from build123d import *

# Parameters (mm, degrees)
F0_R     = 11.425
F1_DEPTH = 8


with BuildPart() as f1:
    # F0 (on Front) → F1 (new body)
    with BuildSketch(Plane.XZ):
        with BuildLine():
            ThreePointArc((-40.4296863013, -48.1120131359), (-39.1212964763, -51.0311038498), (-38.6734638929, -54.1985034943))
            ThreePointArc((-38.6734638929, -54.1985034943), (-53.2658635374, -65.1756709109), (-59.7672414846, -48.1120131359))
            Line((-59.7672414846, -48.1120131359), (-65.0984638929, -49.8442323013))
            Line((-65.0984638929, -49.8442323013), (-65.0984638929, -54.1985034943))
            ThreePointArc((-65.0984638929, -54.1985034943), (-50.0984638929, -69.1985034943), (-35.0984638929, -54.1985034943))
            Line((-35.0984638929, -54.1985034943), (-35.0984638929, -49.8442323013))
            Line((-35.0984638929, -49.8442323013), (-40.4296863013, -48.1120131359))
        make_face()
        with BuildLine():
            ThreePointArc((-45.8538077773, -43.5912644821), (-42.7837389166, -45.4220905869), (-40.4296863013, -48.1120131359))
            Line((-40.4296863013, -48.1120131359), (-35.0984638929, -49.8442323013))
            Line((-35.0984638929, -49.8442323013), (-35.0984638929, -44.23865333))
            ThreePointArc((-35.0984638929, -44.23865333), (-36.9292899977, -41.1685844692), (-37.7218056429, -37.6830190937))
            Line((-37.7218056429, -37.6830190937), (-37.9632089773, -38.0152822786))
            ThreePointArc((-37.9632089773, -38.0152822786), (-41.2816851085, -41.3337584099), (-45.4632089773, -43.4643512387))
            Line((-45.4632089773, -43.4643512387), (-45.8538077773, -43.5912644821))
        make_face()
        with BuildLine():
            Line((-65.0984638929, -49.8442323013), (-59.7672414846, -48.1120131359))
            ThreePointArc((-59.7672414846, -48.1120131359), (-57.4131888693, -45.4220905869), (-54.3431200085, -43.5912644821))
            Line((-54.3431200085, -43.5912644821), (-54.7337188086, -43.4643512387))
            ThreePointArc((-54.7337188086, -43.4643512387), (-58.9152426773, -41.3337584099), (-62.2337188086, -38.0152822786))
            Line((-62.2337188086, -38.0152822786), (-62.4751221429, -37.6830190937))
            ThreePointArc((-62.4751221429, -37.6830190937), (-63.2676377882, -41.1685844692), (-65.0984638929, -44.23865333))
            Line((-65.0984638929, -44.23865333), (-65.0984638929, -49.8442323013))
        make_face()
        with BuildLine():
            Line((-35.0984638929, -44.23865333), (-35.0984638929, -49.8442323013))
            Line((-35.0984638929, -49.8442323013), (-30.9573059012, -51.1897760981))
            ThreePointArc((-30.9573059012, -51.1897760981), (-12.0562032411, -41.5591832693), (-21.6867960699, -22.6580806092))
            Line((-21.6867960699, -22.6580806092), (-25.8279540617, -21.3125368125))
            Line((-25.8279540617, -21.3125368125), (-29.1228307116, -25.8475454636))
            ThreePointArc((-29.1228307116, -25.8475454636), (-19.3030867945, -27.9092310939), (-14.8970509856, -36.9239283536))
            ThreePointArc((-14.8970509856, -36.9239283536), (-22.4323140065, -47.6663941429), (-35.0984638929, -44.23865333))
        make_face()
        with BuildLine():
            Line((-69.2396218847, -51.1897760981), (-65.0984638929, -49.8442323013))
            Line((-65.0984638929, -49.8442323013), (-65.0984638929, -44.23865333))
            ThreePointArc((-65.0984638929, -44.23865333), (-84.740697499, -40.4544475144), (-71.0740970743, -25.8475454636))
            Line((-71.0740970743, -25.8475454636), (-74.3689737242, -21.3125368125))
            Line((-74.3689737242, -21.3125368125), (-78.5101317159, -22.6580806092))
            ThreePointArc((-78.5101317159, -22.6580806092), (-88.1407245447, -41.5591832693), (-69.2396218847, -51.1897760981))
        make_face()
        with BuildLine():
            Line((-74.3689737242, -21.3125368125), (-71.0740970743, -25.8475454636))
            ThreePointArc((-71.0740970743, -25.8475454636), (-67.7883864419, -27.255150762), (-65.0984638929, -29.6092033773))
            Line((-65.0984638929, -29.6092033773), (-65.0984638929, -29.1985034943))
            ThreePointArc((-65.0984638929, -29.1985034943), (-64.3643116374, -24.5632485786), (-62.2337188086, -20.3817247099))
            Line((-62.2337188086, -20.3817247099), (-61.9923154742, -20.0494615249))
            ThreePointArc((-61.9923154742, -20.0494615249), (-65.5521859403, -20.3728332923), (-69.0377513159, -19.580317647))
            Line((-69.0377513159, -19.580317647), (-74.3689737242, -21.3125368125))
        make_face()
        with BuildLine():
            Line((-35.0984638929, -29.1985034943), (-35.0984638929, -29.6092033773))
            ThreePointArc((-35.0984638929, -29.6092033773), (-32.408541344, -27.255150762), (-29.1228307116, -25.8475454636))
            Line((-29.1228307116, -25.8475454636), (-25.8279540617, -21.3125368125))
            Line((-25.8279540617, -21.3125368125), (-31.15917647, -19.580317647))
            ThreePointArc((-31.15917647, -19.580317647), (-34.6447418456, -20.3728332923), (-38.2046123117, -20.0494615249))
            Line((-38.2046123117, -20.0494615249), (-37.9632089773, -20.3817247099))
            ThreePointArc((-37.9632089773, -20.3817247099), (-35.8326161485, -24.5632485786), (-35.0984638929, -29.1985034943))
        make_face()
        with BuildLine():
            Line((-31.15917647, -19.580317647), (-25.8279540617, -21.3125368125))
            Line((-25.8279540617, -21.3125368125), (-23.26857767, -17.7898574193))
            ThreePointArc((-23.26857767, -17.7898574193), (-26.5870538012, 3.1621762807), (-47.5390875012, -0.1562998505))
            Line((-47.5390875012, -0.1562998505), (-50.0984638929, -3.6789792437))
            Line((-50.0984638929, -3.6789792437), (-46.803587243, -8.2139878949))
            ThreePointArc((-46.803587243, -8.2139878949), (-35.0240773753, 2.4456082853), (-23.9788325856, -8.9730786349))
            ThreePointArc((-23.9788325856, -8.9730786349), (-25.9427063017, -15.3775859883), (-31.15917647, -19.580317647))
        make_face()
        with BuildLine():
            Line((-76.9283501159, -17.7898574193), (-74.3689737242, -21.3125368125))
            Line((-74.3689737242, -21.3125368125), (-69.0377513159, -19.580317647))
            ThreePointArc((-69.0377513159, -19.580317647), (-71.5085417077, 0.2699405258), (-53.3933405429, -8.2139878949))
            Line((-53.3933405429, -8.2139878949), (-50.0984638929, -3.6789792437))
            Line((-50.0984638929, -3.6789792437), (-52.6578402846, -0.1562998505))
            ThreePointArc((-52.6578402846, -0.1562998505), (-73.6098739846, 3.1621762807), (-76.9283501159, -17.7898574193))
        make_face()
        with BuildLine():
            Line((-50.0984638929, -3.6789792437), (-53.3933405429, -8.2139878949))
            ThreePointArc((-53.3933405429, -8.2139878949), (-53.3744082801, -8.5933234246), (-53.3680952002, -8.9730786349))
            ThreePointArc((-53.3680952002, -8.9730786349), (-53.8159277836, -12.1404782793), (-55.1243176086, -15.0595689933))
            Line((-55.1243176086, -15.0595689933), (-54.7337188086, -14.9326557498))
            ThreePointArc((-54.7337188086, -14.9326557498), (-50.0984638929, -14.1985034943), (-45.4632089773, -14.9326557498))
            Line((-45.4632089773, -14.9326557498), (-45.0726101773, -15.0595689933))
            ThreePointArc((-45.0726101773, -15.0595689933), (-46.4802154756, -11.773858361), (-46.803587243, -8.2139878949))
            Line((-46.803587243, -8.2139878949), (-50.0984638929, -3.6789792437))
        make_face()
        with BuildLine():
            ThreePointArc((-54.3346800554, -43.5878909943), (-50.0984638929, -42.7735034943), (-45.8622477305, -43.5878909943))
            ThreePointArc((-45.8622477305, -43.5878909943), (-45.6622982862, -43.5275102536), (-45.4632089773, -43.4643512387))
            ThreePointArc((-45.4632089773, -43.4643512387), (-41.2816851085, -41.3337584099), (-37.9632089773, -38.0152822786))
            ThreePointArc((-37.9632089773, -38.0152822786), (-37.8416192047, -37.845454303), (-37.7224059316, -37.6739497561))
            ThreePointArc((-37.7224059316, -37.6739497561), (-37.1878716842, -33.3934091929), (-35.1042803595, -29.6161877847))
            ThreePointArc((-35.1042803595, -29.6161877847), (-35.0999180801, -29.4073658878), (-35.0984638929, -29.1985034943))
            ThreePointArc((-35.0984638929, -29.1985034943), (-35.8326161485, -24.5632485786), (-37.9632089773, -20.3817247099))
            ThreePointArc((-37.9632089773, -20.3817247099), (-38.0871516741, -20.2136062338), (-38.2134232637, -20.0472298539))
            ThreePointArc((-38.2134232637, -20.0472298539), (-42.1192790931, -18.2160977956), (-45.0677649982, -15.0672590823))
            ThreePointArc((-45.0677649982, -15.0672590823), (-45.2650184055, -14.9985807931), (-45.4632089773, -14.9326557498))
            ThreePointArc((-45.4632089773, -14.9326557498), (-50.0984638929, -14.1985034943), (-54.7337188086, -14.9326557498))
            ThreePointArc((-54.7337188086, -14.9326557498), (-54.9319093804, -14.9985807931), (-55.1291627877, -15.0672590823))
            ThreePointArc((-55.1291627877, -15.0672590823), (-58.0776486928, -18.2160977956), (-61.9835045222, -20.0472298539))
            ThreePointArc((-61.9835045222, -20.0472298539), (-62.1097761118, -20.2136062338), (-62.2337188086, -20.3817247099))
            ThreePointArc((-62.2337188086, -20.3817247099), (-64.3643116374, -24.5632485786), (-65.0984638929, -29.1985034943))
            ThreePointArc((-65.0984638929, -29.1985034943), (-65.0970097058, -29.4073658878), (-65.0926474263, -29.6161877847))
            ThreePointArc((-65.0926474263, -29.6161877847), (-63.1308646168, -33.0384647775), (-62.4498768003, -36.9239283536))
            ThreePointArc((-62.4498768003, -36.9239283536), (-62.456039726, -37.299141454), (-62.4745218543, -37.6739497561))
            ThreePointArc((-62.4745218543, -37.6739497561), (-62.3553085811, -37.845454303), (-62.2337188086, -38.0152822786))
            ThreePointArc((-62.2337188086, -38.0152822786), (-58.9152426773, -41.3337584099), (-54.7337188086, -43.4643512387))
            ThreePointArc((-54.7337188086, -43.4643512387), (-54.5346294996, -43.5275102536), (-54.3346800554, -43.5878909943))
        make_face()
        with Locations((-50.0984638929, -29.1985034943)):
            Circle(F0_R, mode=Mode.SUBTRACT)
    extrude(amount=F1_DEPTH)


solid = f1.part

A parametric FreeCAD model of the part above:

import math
import FreeCAD as App
import Part
import Sketcher
from FreeCAD import Vector

doc = App.newDocument("Part")
params = doc.addObject("Spreadsheet::Sheet", "Params")
for row, (alias, value) in enumerate([
    ("sketch1_radius", "15 mm"),
    ("sketch1_diameter", "22.85 mm"),
    ("pad1_length", "8 mm"),
], start=1):
    params.set(f"A{row}", alias)
    params.set(f"B{row}", "=" + value)
    params.setAlias(f"B{row}", alias)

body = doc.addObject("PartDesign::Body", "Body")

# Sketch on XZ plane
sketch1 = body.newObject("Sketcher::SketchObject", "Sketch")
sketch1.AttachmentSupport = (doc.getObject("XZ_Plane"), [""])
sketch1.MapMode = "FlatFace"
sketch1.addGeometry(Part.LineSegment(Vector(-47.54, -0.16, 0), Vector(-50.1, -3.68, 0)), False)
sketch1.addGeometry(Part.LineSegment(Vector(-50.1, -3.68, 0), Vector(-52.66, -0.16, 0)), False)
sketch1.addGeometry(Part.ArcOfCircle(Part.Circle(Vector(-64.79, -8.97, 0), Vector(0, 0, 1), 15), math.radians(36), math.radians(216)), False)
sketch1.addGeometry(Part.LineSegment(Vector(-76.93, -17.79, 0), Vector(-74.37, -21.31, 0)), False)
sketch1.addGeometry(Part.LineSegment(Vector(-74.37, -21.31, 0), Vector(-78.51, -22.66, 0)), False)
sketch1.addGeometry(Part.ArcOfCircle(Part.Circle(Vector(-73.87, -36.92, 0), Vector(0, 0, 1), 15), math.radians(108), math.radians(288)), False)
sketch1.addGeometry(Part.LineSegment(Vector(-69.24, -51.19, 0), Vector(-65.1, -49.84, 0)), False)
sketch1.addGeometry(Part.LineSegment(Vector(-65.1, -49.84, 0), Vector(-65.1, -54.2, 0)), False)
sketch1.addGeometry(Part.ArcOfCircle(Part.Circle(Vector(-50.1, -54.2, 0), Vector(0, 0, 1), 15), math.radians(180), math.radians(360)), False)
sketch1.addGeometry(Part.LineSegment(Vector(-35.1, -54.2, 0), Vector(-35.1, -49.84, 0)), False)
sketch1.addGeometry(Part.LineSegment(Vector(-35.1, -49.84, 0), Vector(-30.96, -51.19, 0)), False)
sketch1.addGeometry(Part.ArcOfCircle(Part.Circle(Vector(-26.32, -36.92, 0), Vector(0, 0, 1), 15), math.radians(-108), math.radians(72)), False)
sketch1.addGeometry(Part.LineSegment(Vector(-21.69, -22.66, 0), Vector(-25.83, -21.31, 0)), False)
sketch1.addGeometry(Part.LineSegment(Vector(-25.83, -21.31, 0), Vector(-23.27, -17.79, 0)), False)
sketch1.addGeometry(Part.ArcOfCircle(Part.Circle(Vector(-35.4, -8.97, 0), Vector(0, 0, 1), 15), math.radians(-36), math.radians(144)), False)
sketch1.addGeometry(Part.LineSegment(Vector(-65.1, -29.61, 0), Vector(-65.1, -29.2, 0)), False)
sketch1.addGeometry(Part.ArcOfCircle(Part.Circle(Vector(-50.1, -29.2, 0), Vector(0, 0, 1), 15), math.radians(180), math.radians(181.6)), False)
sketch1.addGeometry(Part.ArcOfCircle(Part.Circle(Vector(-73.87, -36.92, 0), Vector(0, 0, 1), 11.43), math.radians(0), math.radians(40)), False)
sketch1.addGeometry(Part.ArcOfCircle(Part.Circle(Vector(-73.87, -36.92, 0), Vector(0, 0, 1), 11.42), math.radians(-3.76), math.radians(0)), False)
sketch1.addGeometry(Part.ArcOfCircle(Part.Circle(Vector(-50.1, -29.2, 0), Vector(0, 0, 1), 15), math.radians(-145.6), math.radians(-144)), False)
sketch1.addGeometry(Part.LineSegment(Vector(-62.23, -38.02, 0), Vector(-62.48, -37.68, 0)), False)
sketch1.addGeometry(Part.ArcOfCircle(Part.Circle(Vector(-73.87, -36.92, 0), Vector(0, 0, 1), 11.43), math.radians(-40), math.radians(-4)), False)
sketch1.addGeometry(Part.ArcOfCircle(Part.Circle(Vector(-73.87, -36.92, 0), Vector(0, 0, 1), 11.43), math.radians(76), math.radians(320)), False)
sketch1.addGeometry(Part.ArcOfCircle(Part.Circle(Vector(-73.87, -36.92, 0), Vector(0, 0, 1), 11.43), math.radians(40), math.radians(76)), False)
sketch1.addGeometry(Part.LineSegment(Vector(-54.34, -43.59, 0), Vector(-54.73, -43.46, 0)), False)
sketch1.addGeometry(Part.ArcOfCircle(Part.Circle(Vector(-50.1, -29.2, 0), Vector(0, 0, 1), 15), math.radians(-108), math.radians(-106.4)), False)
sketch1.addGeometry(Part.ArcOfCircle(Part.Circle(Vector(-50.1, -54.2, 0), Vector(0, 0, 1), 11.43), math.radians(68), math.radians(112)), False)
sketch1.addGeometry(Part.ArcOfCircle(Part.Circle(Vector(-50.1, -29.2, 0), Vector(0, 0, 1), 15), math.radians(-73.6), math.radians(-72)), False)
sketch1.addGeometry(Part.LineSegment(Vector(-45.46, -43.46, 0), Vector(-45.85, -43.59, 0)), False)
sketch1.addGeometry(Part.ArcOfCircle(Part.Circle(Vector(-50.1, -54.2, 0), Vector(0, 0, 1), 11.43), math.radians(32), math.radians(68)), False)
sketch1.addGeometry(Part.ArcOfCircle(Part.Circle(Vector(-50.1, -54.2, 0), Vector(0, 0, 1), 11.42), math.radians(0), math.radians(32)), False)
sketch1.addGeometry(Part.ArcOfCircle(Part.Circle(Vector(-50.1, -54.2, 0), Vector(0, 0, 1), 11.43), math.radians(148), math.radians(360)), False)
sketch1.addGeometry(Part.ArcOfCircle(Part.Circle(Vector(-50.1, -54.2, 0), Vector(0, 0, 1), 11.43), math.radians(112), math.radians(148)), False)
sketch1.addGeometry(Part.LineSegment(Vector(-37.72, -37.68, 0), Vector(-37.96, -38.02, 0)), False)
sketch1.addGeometry(Part.ArcOfCircle(Part.Circle(Vector(-50.1, -29.2, 0), Vector(0, 0, 1), 15), math.radians(-36), math.radians(-34.4)), False)
sketch1.addGeometry(Part.ArcOfCircle(Part.Circle(Vector(-26.32, -36.92, 0), Vector(0, 0, 1), 11.43), math.radians(140), math.radians(184)), False)
sketch1.addGeometry(Part.ArcOfCircle(Part.Circle(Vector(-50.1, -29.2, 0), Vector(0, 0, 1), 15), math.radians(-1.6), math.radians(0)), False)
sketch1.addGeometry(Part.LineSegment(Vector(-35.1, -29.2, 0), Vector(-35.1, -29.61, 0)), False)
sketch1.addGeometry(Part.ArcOfCircle(Part.Circle(Vector(-26.32, -36.92, 0), Vector(0, 0, 1), 11.43), math.radians(104), math.radians(140)), False)
sketch1.addGeometry(Part.ArcOfCircle(Part.Circle(Vector(-26.32, -36.92, 0), Vector(0, 0, 1), 11.43), math.radians(0), math.radians(104)), False)
sketch1.addGeometry(Part.ArcOfCircle(Part.Circle(Vector(-26.32, -36.92, 0), Vector(0, 0, 1), 11.43), math.radians(-140), math.radians(0)), False)
sketch1.addGeometry(Part.ArcOfCircle(Part.Circle(Vector(-26.32, -36.92, 0), Vector(0, 0, 1), 11.43), math.radians(-176), math.radians(-140)), False)
sketch1.addGeometry(Part.LineSegment(Vector(-55.12, -15.06, 0), Vector(-54.73, -14.93, 0)), False)
sketch1.addGeometry(Part.ArcOfCircle(Part.Circle(Vector(-50.1, -29.2, 0), Vector(0, 0, 1), 15), math.radians(108), math.radians(109.6)), False)
sketch1.addGeometry(Part.ArcOfCircle(Part.Circle(Vector(-64.79, -8.97, 0), Vector(0, 0, 1), 11.43), math.radians(-76), math.radians(-32)), False)
sketch1.addGeometry(Part.ArcOfCircle(Part.Circle(Vector(-50.1, -29.2, 0), Vector(0, 0, 1), 15), math.radians(142.4), math.radians(144)), False)
sketch1.addGeometry(Part.LineSegment(Vector(-62.23, -20.38, 0), Vector(-61.99, -20.05, 0)), False)
sketch1.addGeometry(Part.ArcOfCircle(Part.Circle(Vector(-64.79, -8.97, 0), Vector(0, 0, 1), 11.42), math.radians(-112), math.radians(-76)), False)
sketch1.addGeometry(Part.ArcOfCircle(Part.Circle(Vector(-64.79, -8.97, 0), Vector(0, 0, 1), 11.43), math.radians(4), math.radians(248)), False)
sketch1.addGeometry(Part.ArcOfCircle(Part.Circle(Vector(-64.79, -8.97, 0), Vector(0, 0, 1), 11.43), math.radians(0), math.radians(3.81)), False)
sketch1.addGeometry(Part.ArcOfCircle(Part.Circle(Vector(-64.79, -8.97, 0), Vector(0, 0, 1), 11.43), math.radians(-32), math.radians(0)), False)
sketch1.addGeometry(Part.Circle(Vector(-50.1, -29.2, 0), Vector(0, 0, 1), 11.43), False)
sketch1.addGeometry(Part.LineSegment(Vector(-38.2, -20.05, 0), Vector(-37.96, -20.38, 0)), False)
sketch1.addGeometry(Part.ArcOfCircle(Part.Circle(Vector(-50.1, -29.2, 0), Vector(0, 0, 1), 15), math.radians(36), math.radians(37.6)), False)
sketch1.addGeometry(Part.ArcOfCircle(Part.Circle(Vector(-35.4, -8.97, 0), Vector(0, 0, 1), 11.43), math.radians(-148), math.radians(-104)), False)
sketch1.addGeometry(Part.ArcOfCircle(Part.Circle(Vector(-50.1, -29.2, 0), Vector(0, 0, 1), 15), math.radians(70.4), math.radians(72)), False)
sketch1.addGeometry(Part.LineSegment(Vector(-45.46, -14.93, 0), Vector(-45.07, -15.06, 0)), False)
sketch1.addGeometry(Part.ArcOfCircle(Part.Circle(Vector(-35.4, -8.97, 0), Vector(0, 0, 1), 11.43), math.radians(176), math.radians(212)), False)
sketch1.addGeometry(Part.ArcOfCircle(Part.Circle(Vector(-35.4, -8.97, 0), Vector(0, 0, 1), 11.43), math.radians(0), math.radians(176)), False)
sketch1.addGeometry(Part.ArcOfCircle(Part.Circle(Vector(-35.4, -8.97, 0), Vector(0, 0, 1), 11.43), math.radians(-68), math.radians(0)), False)
sketch1.addGeometry(Part.ArcOfCircle(Part.Circle(Vector(-35.4, -8.97, 0), Vector(0, 0, 1), 11.42), math.radians(-104), math.radians(-68)), False)
sketch1.addConstraint(Sketcher.Constraint("Coincident", 0, 2, 1, 1))
sketch1.addConstraint(Sketcher.Constraint("Tangent", 1, 2, 2, 1))
sketch1.addConstraint(Sketcher.Constraint("Tangent", 2, 2, 3, 1))
sketch1.addConstraint(Sketcher.Constraint("Coincident", 3, 2, 4, 1))
sketch1.addConstraint(Sketcher.Constraint("Tangent", 4, 2, 5, 1))
sketch1.addConstraint(Sketcher.Constraint("Tangent", 5, 2, 6, 1))
sketch1.addConstraint(Sketcher.Constraint("Coincident", 6, 2, 7, 1))
sketch1.addConstraint(Sketcher.Constraint("Tangent", 7, 2, 8, 1))
sketch1.addConstraint(Sketcher.Constraint("Tangent", 8, 2, 9, 1))
sketch1.addConstraint(Sketcher.Constraint("Coincident", 9, 2, 10, 1))
sketch1.addConstraint(Sketcher.Constraint("Tangent", 10, 2, 11, 1))
sketch1.addConstraint(Sketcher.Constraint("Tangent", 11, 2, 12, 1))
sketch1.addConstraint(Sketcher.Constraint("Coincident", 12, 2, 13, 1))
sketch1.addConstraint(Sketcher.Constraint("Tangent", 13, 2, 14, 1))
sketch1.addConstraint(Sketcher.Constraint("Tangent", 14, 2, 0, 1))
sketch1.addConstraint(Sketcher.Constraint("Tangent", 15, 2, 16, 1))
sketch1.addConstraint(Sketcher.Constraint("Coincident", 16, 2, 17, 2))
sketch1.addConstraint(Sketcher.Constraint("Tangent", 17, 1, 18, 2))
sketch1.addConstraint(Sketcher.Constraint("Coincident", 18, 1, 19, 1))
sketch1.addConstraint(Sketcher.Constraint("Tangent", 19, 2, 20, 1))
sketch1.addConstraint(Sketcher.Constraint("Coincident", 20, 2, 21, 2))
sketch1.addConstraint(Sketcher.Constraint("Tangent", 21, 1, 22, 2))
sketch1.addConstraint(Sketcher.Constraint("Tangent", 22, 1, 23, 2))
sketch1.addConstraint(Sketcher.Constraint("Coincident", 23, 1, 15, 1))
sketch1.addConstraint(Sketcher.Constraint("Tangent", 24, 2, 25, 1))
sketch1.addConstraint(Sketcher.Constraint("Coincident", 25, 2, 26, 2))
sketch1.addConstraint(Sketcher.Constraint("Coincident", 26, 1, 27, 1))
sketch1.addConstraint(Sketcher.Constraint("Tangent", 27, 2, 28, 1))
sketch1.addConstraint(Sketcher.Constraint("Coincident", 28, 2, 29, 2))
sketch1.addConstraint(Sketcher.Constraint("Tangent", 29, 1, 30, 2))
sketch1.addConstraint(Sketcher.Constraint("Tangent", 30, 1, 31, 2))
sketch1.addConstraint(Sketcher.Constraint("Tangent", 31, 1, 32, 2))
sketch1.addConstraint(Sketcher.Constraint("Coincident", 32, 1, 24, 1))
sketch1.addConstraint(Sketcher.Constraint("Tangent", 33, 2, 34, 1))
sketch1.addConstraint(Sketcher.Constraint("Coincident", 34, 2, 35, 2))
sketch1.addConstraint(Sketcher.Constraint("Coincident", 35, 1, 36, 1))
sketch1.addConstraint(Sketcher.Constraint("Tangent", 36, 2, 37, 1))
sketch1.addConstraint(Sketcher.Constraint("Coincident", 37, 2, 38, 2))
sketch1.addConstraint(Sketcher.Constraint("Tangent", 38, 1, 39, 2))
sketch1.addConstraint(Sketcher.Constraint("Tangent", 39, 1, 40, 2))
sketch1.addConstraint(Sketcher.Constraint("Tangent", 40, 1, 41, 2))
sketch1.addConstraint(Sketcher.Constraint("Coincident", 41, 1, 33, 1))
sketch1.addConstraint(Sketcher.Constraint("Tangent", 42, 2, 43, 1))
sketch1.addConstraint(Sketcher.Constraint("Coincident", 43, 2, 44, 2))
sketch1.addConstraint(Sketcher.Constraint("Coincident", 44, 1, 45, 1))
sketch1.addConstraint(Sketcher.Constraint("Tangent", 45, 2, 46, 1))
sketch1.addConstraint(Sketcher.Constraint("Coincident", 46, 2, 47, 2))
sketch1.addConstraint(Sketcher.Constraint("Tangent", 47, 1, 48, 2))
sketch1.addConstraint(Sketcher.Constraint("Tangent", 48, 1, 49, 2))
sketch1.addConstraint(Sketcher.Constraint("Tangent", 49, 1, 50, 2))
sketch1.addConstraint(Sketcher.Constraint("Coincident", 50, 1, 42, 1))
sketch1.addConstraint(Sketcher.Constraint("Tangent", 52, 2, 53, 1))
sketch1.addConstraint(Sketcher.Constraint("Coincident", 53, 2, 54, 2))
sketch1.addConstraint(Sketcher.Constraint("Coincident", 54, 1, 55, 1))
sketch1.addConstraint(Sketcher.Constraint("Tangent", 55, 2, 56, 1))
sketch1.addConstraint(Sketcher.Constraint("Coincident", 56, 2, 57, 2))
sketch1.addConstraint(Sketcher.Constraint("Tangent", 57, 1, 58, 2))
sketch1.addConstraint(Sketcher.Constraint("Tangent", 58, 1, 59, 2))
sketch1.addConstraint(Sketcher.Constraint("Tangent", 59, 1, 60, 2))
sketch1.addConstraint(Sketcher.Constraint("Coincident", 60, 1, 52, 1))
sketch1.addConstraint(Sketcher.Constraint("Vertical", 7))
sketch1.addConstraint(Sketcher.Constraint("Vertical", 9))
sketch1.addConstraint(Sketcher.Constraint("Vertical", 15))
sketch1.addConstraint(Sketcher.Constraint("Vertical", 37))
sketch1.addConstraint(Sketcher.Constraint("Coincident", 17, 3, 5, 3))
sketch1.addConstraint(Sketcher.Constraint("Coincident", 19, 3, 16, 3))
sketch1.addConstraint(Sketcher.Constraint("Coincident", 21, 3, 5, 3))
sketch1.addConstraint(Sketcher.Constraint("Coincident", 23, 3, 5, 3))
sketch1.addConstraint(Sketcher.Constraint("Coincident", 25, 3, 16, 3))
sketch1.addConstraint(Sketcher.Constraint("Coincident", 26, 3, 8, 3))
sketch1.addConstraint(Sketcher.Constraint("Coincident", 27, 3, 16, 3))
sketch1.addConstraint(Sketcher.Constraint("Coincident", 29, 3, 8, 3))
sketch1.addConstraint(Sketcher.Constraint("Coincident", 31, 3, 8, 3))
sketch1.addConstraint(Sketcher.Constraint("Coincident", 34, 3, 16, 3))
sketch1.addConstraint(Sketcher.Constraint("Coincident", 35, 3, 11, 3))
sketch1.addConstraint(Sketcher.Constraint("Coincident", 36, 3, 16, 3))
sketch1.addConstraint(Sketcher.Constraint("Coincident", 38, 3, 11, 3))
sketch1.addConstraint(Sketcher.Constraint("Coincident", 40, 3, 11, 3))
sketch1.addConstraint(Sketcher.Constraint("Coincident", 43, 3, 16, 3))
sketch1.addConstraint(Sketcher.Constraint("Coincident", 44, 3, 2, 3))
sketch1.addConstraint(Sketcher.Constraint("Coincident", 45, 3, 16, 3))
sketch1.addConstraint(Sketcher.Constraint("Coincident", 47, 3, 2, 3))
sketch1.addConstraint(Sketcher.Constraint("Coincident", 49, 3, 2, 3))
sketch1.addConstraint(Sketcher.Constraint("Coincident", 51, 3, 16, 3))
sketch1.addConstraint(Sketcher.Constraint("Coincident", 53, 3, 16, 3))
sketch1.addConstraint(Sketcher.Constraint("Coincident", 54, 3, 14, 3))
sketch1.addConstraint(Sketcher.Constraint("Coincident", 55, 3, 16, 3))
sketch1.addConstraint(Sketcher.Constraint("Coincident", 57, 3, 14, 3))
sketch1.addConstraint(Sketcher.Constraint("Coincident", 59, 3, 14, 3))
sketch1.addConstraint(Sketcher.Constraint("Equal", 2, 5))
sketch1.addConstraint(Sketcher.Constraint("Equal", 5, 8))
sketch1.addConstraint(Sketcher.Constraint("Equal", 8, 11))
sketch1.addConstraint(Sketcher.Constraint("Equal", 11, 14))
sketch1.addConstraint(Sketcher.Constraint("Equal", 14, 16))
sketch1.addConstraint(Sketcher.Constraint("Equal", 17, 18))
sketch1.addConstraint(Sketcher.Constraint("Equal", 16, 19))
sketch1.addConstraint(Sketcher.Constraint("Equal", 18, 21))
sketch1.addConstraint(Sketcher.Constraint("Equal", 19, 25))
sketch1.addConstraint(Sketcher.Constraint("Equal", 23, 26))
sketch1.addConstraint(Sketcher.Constraint("Equal", 25, 27))
sketch1.addConstraint(Sketcher.Constraint("Equal", 26, 29))
sketch1.addConstraint(Sketcher.Constraint("Equal", 31, 32))
sketch1.addConstraint(Sketcher.Constraint("Equal", 27, 34))
sketch1.addConstraint(Sketcher.Constraint("Equal", 32, 35))
sketch1.addConstraint(Sketcher.Constraint("Equal", 34, 36))
sketch1.addConstraint(Sketcher.Constraint("Equal", 35, 38))
sketch1.addConstraint(Sketcher.Constraint("Equal", 40, 41))
sketch1.addConstraint(Sketcher.Constraint("Equal", 36, 43))
sketch1.addConstraint(Sketcher.Constraint("Equal", 41, 44))
sketch1.addConstraint(Sketcher.Constraint("Equal", 43, 45))
sketch1.addConstraint(Sketcher.Constraint("Equal", 44, 47))
sketch1.addConstraint(Sketcher.Constraint("Equal", 49, 50))
sketch1.addConstraint(Sketcher.Constraint("Equal", 50, 51))
sketch1.addConstraint(Sketcher.Constraint("Equal", 45, 53))
sketch1.addConstraint(Sketcher.Constraint("Equal", 51, 54))
sketch1.addConstraint(Sketcher.Constraint("Equal", 53, 55))
sketch1.addConstraint(Sketcher.Constraint("Equal", 54, 57))
sketch1.addConstraint(Sketcher.Constraint("Equal", 59, 60))
sketch1.addConstraint(Sketcher.Constraint("Parallel", 1, 3))
sketch1.addConstraint(Sketcher.Constraint("Parallel", 4, 6))
sketch1.addConstraint(Sketcher.Constraint("Parallel", 10, 12))
sketch1.addConstraint(Sketcher.Constraint("Parallel", 0, 13))
sketch1.addConstraint(Sketcher.Constraint("Parallel", 3, 20))
sketch1.addConstraint(Sketcher.Constraint("Parallel", 12, 24))
sketch1.addConstraint(Sketcher.Constraint("Parallel", 6, 28))
sketch1.addConstraint(Sketcher.Constraint("Parallel", 13, 33))
sketch1.addConstraint(Sketcher.Constraint("Parallel", 28, 42))
sketch1.addConstraint(Sketcher.Constraint("Parallel", 33, 46))
sketch1.addConstraint(Sketcher.Constraint("Parallel", 20, 52))
sketch1.addConstraint(Sketcher.Constraint("Parallel", 24, 56))
sketch1.addConstraint(Sketcher.Constraint("Horizontal", 5, 3, 11, 3))
sketch1.addConstraint(Sketcher.Constraint("Horizontal", 2, 3, 14, 3))
sketch1.addConstraint(Sketcher.Constraint("Horizontal", 6, 2, 9, 2))
sketch1.addConstraint(Sketcher.Constraint("Horizontal", 5, 2, 10, 2))
sketch1.addConstraint(Sketcher.Constraint("Horizontal", 3, 2, 12, 2))
sketch1.addConstraint(Sketcher.Constraint("Horizontal", 2, 2, 13, 2))
sketch1.addConstraint(Sketcher.Constraint("Horizontal", 41, 3, 17, 1))
sketch1.addConstraint(Sketcher.Constraint("Horizontal", 25, 2, 26, 1))
sketch1.addConstraint(Sketcher.Constraint("Horizontal", 8, 2, 30, 1))
sketch1.addConstraint(Sketcher.Constraint("Horizontal", 29, 1, 31, 1))
sketch1.addConstraint(Sketcher.Constraint("Horizontal", 22, 1, 38, 1))
sketch1.addConstraint(Sketcher.Constraint("Horizontal", 17, 1, 39, 1))
sketch1.addConstraint(Sketcher.Constraint("Horizontal", 21, 1, 40, 1))
sketch1.addConstraint(Sketcher.Constraint("Horizontal", 60, 3, 49, 1))
sketch1.addConstraint(Sketcher.Constraint("Horizontal", 48, 1, 57, 1))
sketch1.addConstraint(Sketcher.Constraint("Horizontal", 49, 1, 58, 1))
sketch1.addConstraint(Sketcher.Constraint("Horizontal", 47, 1, 59, 1))
sketch1.addConstraint(Sketcher.Constraint("Vertical", 15, 2, 21, 1))
sketch1.addConstraint(Sketcher.Constraint("Equal", 1, 3))
sketch1.addConstraint(Sketcher.Constraint("Equal", 3, 4))
sketch1.addConstraint(Sketcher.Constraint("Equal", 4, 6))
sketch1.addConstraint(Sketcher.Constraint("Equal", 20, 24))
sketch1.addConstraint(Sketcher.Constraint("Equal", 33, 42))
sketch1.addConstraint(Sketcher.Constraint("Equal", 42, 46))
sketch1.addConstraint(Sketcher.Constraint("Radius", 2, 15.0))
sketch1.addConstraint(Sketcher.Constraint("Diameter", 51, 22.85))
sketch1.addConstraint(Sketcher.Constraint("DistanceY", 15, 1, 15, 2, 0.4107))
sketch1.addConstraint(Sketcher.Constraint("DistanceY", 1, 2, -1, 1, 0.1563))
sketch1.addConstraint(Sketcher.Constraint("DistanceX", 11, 3, -1, 1, 26.322051))
sketch1.addConstraint(Sketcher.Constraint("DistanceX", 31, 1, -1, 1, 59.767241))
sketch1.addConstraint(Sketcher.Constraint("DistanceX", 38, 1, -1, 1, 29.122831))
sketch1.addConstraint(Sketcher.Constraint("DistanceX", 47, 1, -1, 1, 69.037751))
sketch1.addConstraint(Sketcher.Constraint("DistanceX", 48, 1, -1, 1, 53.393341))
sketch1.setExpression("Constraints[154]", "Params.sketch1_radius")
sketch1.setExpression("Constraints[155]", "Params.sketch1_diameter")
pad1 = body.newObject("PartDesign::Pad", "Pad")
pad1.Profile = sketch1
pad1.setExpression("Length", "Params.pad1_length")

doc.recompute()
